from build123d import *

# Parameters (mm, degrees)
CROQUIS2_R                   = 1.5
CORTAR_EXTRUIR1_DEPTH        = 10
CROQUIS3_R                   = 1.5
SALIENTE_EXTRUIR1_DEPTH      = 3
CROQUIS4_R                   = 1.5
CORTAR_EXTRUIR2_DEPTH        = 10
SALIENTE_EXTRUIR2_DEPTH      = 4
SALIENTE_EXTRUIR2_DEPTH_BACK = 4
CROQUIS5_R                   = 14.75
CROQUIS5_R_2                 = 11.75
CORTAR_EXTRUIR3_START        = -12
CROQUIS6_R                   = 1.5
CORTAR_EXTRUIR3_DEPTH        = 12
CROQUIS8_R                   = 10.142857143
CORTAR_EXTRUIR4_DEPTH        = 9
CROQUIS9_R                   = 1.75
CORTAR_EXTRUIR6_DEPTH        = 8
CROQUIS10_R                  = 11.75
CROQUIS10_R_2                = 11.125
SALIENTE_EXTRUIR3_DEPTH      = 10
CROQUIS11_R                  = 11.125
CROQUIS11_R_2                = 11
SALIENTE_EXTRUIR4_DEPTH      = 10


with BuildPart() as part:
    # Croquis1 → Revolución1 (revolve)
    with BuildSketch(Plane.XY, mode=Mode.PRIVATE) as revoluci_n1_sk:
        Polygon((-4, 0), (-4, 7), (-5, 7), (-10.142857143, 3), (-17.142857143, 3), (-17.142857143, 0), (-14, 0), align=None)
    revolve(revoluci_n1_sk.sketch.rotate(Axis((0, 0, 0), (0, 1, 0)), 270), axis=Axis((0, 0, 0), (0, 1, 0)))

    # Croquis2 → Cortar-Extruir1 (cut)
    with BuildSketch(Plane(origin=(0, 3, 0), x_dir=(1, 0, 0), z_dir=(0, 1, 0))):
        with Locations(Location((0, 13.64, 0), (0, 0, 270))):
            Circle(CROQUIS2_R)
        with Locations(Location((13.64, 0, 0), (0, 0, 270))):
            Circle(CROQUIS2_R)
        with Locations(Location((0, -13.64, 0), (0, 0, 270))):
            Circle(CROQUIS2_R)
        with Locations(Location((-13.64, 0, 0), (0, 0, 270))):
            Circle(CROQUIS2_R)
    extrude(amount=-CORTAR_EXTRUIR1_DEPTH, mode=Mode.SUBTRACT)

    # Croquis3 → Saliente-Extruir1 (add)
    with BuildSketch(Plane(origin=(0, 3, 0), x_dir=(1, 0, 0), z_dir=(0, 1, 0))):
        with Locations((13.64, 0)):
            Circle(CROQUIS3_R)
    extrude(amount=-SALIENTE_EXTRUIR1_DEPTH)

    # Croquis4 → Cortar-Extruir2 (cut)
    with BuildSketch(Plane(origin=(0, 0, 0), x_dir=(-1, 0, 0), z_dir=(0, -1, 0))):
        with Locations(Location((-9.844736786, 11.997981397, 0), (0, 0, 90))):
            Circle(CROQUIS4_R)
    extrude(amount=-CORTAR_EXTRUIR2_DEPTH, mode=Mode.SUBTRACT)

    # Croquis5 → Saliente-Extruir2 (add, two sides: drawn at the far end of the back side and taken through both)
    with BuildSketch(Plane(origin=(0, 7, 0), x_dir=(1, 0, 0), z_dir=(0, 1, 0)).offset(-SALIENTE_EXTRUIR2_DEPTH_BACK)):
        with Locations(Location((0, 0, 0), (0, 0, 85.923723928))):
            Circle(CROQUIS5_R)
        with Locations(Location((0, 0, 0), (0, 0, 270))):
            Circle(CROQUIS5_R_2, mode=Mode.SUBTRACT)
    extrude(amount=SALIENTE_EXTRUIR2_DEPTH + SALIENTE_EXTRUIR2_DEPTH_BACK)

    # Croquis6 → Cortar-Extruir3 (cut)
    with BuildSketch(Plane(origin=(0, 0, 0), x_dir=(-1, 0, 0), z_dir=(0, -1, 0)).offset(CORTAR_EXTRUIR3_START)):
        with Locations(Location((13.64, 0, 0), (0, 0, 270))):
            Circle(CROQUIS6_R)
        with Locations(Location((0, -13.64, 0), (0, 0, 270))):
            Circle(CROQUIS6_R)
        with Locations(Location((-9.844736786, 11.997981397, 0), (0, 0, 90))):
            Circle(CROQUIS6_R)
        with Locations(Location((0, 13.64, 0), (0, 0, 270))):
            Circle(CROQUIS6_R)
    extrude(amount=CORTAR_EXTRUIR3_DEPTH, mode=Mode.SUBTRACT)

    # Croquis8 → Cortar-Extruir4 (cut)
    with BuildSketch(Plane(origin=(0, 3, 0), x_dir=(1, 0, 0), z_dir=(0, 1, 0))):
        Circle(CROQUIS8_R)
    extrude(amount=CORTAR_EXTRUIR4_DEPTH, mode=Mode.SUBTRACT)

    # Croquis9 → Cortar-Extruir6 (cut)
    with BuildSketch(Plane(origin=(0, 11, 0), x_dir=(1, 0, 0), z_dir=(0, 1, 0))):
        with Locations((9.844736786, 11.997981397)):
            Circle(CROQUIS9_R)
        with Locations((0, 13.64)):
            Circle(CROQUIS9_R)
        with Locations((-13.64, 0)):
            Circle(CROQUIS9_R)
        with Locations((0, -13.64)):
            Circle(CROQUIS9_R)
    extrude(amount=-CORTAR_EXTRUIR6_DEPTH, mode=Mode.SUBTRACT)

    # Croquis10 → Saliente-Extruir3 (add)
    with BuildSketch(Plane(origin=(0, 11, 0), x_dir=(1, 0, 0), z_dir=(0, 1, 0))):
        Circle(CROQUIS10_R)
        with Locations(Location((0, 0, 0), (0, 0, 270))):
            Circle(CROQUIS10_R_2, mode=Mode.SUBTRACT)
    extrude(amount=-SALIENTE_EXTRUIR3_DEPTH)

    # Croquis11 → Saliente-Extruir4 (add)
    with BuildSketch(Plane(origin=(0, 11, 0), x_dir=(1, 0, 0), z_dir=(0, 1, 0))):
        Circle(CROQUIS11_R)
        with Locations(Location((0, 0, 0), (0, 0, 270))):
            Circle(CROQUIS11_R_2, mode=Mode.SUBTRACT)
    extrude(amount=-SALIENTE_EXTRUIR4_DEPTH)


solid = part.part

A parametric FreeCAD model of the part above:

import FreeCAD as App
import Part
import Sketcher
from FreeCAD import Vector
Q = App.Units.Quantity

doc = App.newDocument("Part")
body = doc.addObject("PartDesign::Body", "Body")

# Sketch on XY plane
sketch1 = doc.addObject("Sketcher::SketchObject", "Sketch")
body.addObject(sketch1)
sketch1.AttachmentSupport = (doc.XY_Plane, [""])
sketch1.MapMode = "FlatFace"
sketch1.addGeometry([
    Part.LineSegment(Vector(-4, 0, 0), Vector(-4, 7, 0)),  # 0
    Part.LineSegment(Vector(-4, 7, 0), Vector(-5, 7, 0)),  # 1
    Part.LineSegment(Vector(-5, 7, 0), Vector(-10.1, 3, 0)),  # 2
    Part.LineSegment(Vector(-10.1, 3, 0), Vector(-17.1, 3, 0)),  # 3
    Part.LineSegment(Vector(-17.1, 3, 0), Vector(-17.1, 0, 0)),  # 4
    Part.LineSegment(Vector(-17.1, 0, 0), Vector(-4, 0, 0)),  # 5
], False)
sketch1.addConstraint([
    Sketcher.Constraint("Coincident", 0, 2, 1, 1),
    Sketcher.Constraint("Coincident", 1, 2, 2, 1),
    Sketcher.Constraint("Coincident", 2, 2, 3, 1),
    Sketcher.Constraint("Coincident", 3, 2, 4, 1),
    Sketcher.Constraint("Coincident", 4, 2, 5, 1),
    Sketcher.Constraint("Coincident", 5, 2, 0, 1),
    Sketcher.Constraint("Vertical", 0),
    Sketcher.Constraint("Horizontal", 1),
    Sketcher.Constraint("Horizontal", 3),
    Sketcher.Constraint("Vertical", 4),
    Sketcher.Constraint("Horizontal", 5),
    Sketcher.Constraint("PointOnObject", 4, 2, -1),
    Sketcher.Constraint("Equal", 3, 0),
    Sketcher.Constraint("DistanceX", 1, 2, 1, 1, Q("1 mm")),
    Sketcher.Constraint("DistanceX", 3, 2, 3, 1, Q("7 mm")),
    Sketcher.Constraint("DistanceY", 4, 2, 4, 1, Q("3 mm")),
    Sketcher.Constraint("DistanceX", 0, 2, -1, 1, Q("4 mm")),
    Sketcher.Constraint("Distance", 2, Q("6.515288 mm")),
])
revolution = doc.addObject("PartDesign::Revolution", "Revolution")
body.addObject(revolution)
revolution.Profile = sketch1
revolution.ReferenceAxis = (sketch1, ["V_Axis"])
revolution.Angle = 360

# Sketch on XZ plane
sketch2 = doc.addObject("Sketcher::SketchObject", "Sketch001")
body.addObject(sketch2)
sketch2.AttachmentSupport = (doc.XZ_Plane, [""])
sketch2.MapMode = "FlatFace"
sketch2.AttachmentOffset = App.Placement(Vector(0, 0, -3), App.Rotation())
sketch2.addGeometry([
    Part.Circle(Vector(0, -13.6, 0), Vector(0, 0, 1), 1.5),
    Part.Circle(Vector(13.6, 0, 0), Vector(0, 0, 1), 1.5),
    Part.Circle(Vector(0, 13.6, 0), Vector(0, 0, 1), 1.5),
    Part.Circle(Vector(-13.6, 0, 0), Vector(0, 0, 1), 1.5),
], False)
sketch2.addConstraint([
    Sketcher.Constraint("Equal", 0, 1),
    Sketcher.Constraint("Equal", 1, 2),
    Sketcher.Constraint("Equal", 2, 3),
    Sketcher.Constraint("Symmetric", 0, 3, 2, 3, -1, 1),
    Sketcher.Constraint("Symmetric", 1, 3, 3, 3, -1, 1),
    Sketcher.Constraint("PointOnObject", 0, 3, -2),
    Sketcher.Constraint("PointOnObject", 1, 3, -1),
    Sketcher.Constraint("Diameter", 0, Q("3 mm")),
    Sketcher.Constraint("DistanceY", 0, 3, -1, 1, Q("13.64 mm")),
    Sketcher.Constraint("DistanceX", -1, 1, 1, 3, Q("13.64 mm")),
])
pocket1 = doc.addObject("PartDesign::Pocket", "Pocket")
body.addObject(pocket1)
pocket1.Profile = sketch2
pocket1.Length = 10
pocket1.Reversed = True

# Sketch on XZ plane
sketch3 = doc.addObject("Sketcher::SketchObject", "Sketch002")
body.addObject(sketch3)
sketch3.AttachmentSupport = (doc.XZ_Plane, [""])
sketch3.MapMode = "FlatFace"
sketch3.AttachmentOffset = App.Placement(Vector(0, 0, -3), App.Rotation())
sketch3.addGeometry(Part.Circle(Vector(13.6, 0, 0), Vector(0, 0, 1), 1.5), False)
sketch3.addConstraint([
    Sketcher.Constraint("PointOnObject", 0, 3, -1),
    Sketcher.Constraint("Diameter", 0, Q("3 mm")),
    Sketcher.Constraint("DistanceX", -1, 1, 0, 3, Q("13.64 mm")),
])
pad1 = doc.addObject("PartDesign::Pad", "Pad")
body.addObject(pad1)
pad1.Profile = sketch3
pad1.Length = 3

# Sketch on XZ plane
sketch4 = doc.addObject("Sketcher::SketchObject", "Sketch003")
body.addObject(sketch4)
sketch4.AttachmentSupport = (doc.XZ_Plane, [""])
sketch4.MapMode = "FlatFace"
sketch4.addGeometry(Part.Circle(Vector(9.8, -12, 0), Vector(0, 0, 1), 1.5), False)
sketch4.addConstraint([
    Sketcher.Constraint("Diameter", 0, Q("3 mm")),
    Sketcher.Constraint("DistanceY", 0, 3, -1, 1, Q("11.997981 mm")),
    Sketcher.Constraint("DistanceX", -1, 1, 0, 3, Q("9.844737 mm")),
])
pocket2 = doc.addObject("PartDesign::Pocket", "Pocket001")
body.addObject(pocket2)
pocket2.Profile = sketch4
pocket2.Length = 10

# Sketch on XZ plane
sketch5 = doc.addObject("Sketcher::SketchObject", "Sketch004")
body.addObject(sketch5)
sketch5.AttachmentSupport = (doc.XZ_Plane, [""])
sketch5.MapMode = "FlatFace"
sketch5.AttachmentOffset = App.Placement(Vector(0, 0, -7), App.Rotation())
sketch5.addGeometry([
    Part.Circle(Vector(0, 0, 0), Vector(0, 0, 1), 15),
    Part.Circle(Vector(0, 0, 0), Vector(0, 0, 1), 12),
], False)
sketch5.addConstraint([
    Sketcher.Constraint("Coincident", 0, 3, -1, 1),
    Sketcher.Constraint("Coincident", 1, 3, -1, 1),
    Sketcher.Constraint("Diameter", 0, Q("29.5 mm")),
    Sketcher.Constraint("Diameter", 1, Q("23.5 mm")),
])
pad2 = doc.addObject("PartDesign::Pad", "Pad001")
body.addObject(pad2)
pad2.Profile = sketch5
pad2.Type = "TwoLengths"
pad2.Length = 4
pad2.Length2 = 4
pad2.Reversed = True

# Sketch on XZ plane
sketch6 = doc.addObject("Sketcher::SketchObject", "Sketch005")
body.addObject(sketch6)
sketch6.AttachmentSupport = (doc.XZ_Plane, [""])
sketch6.MapMode = "FlatFace"
sketch6.AttachmentOffset = App.Placement(Vector(0, 0, -12), App.Rotation())
sketch6.addGeometry([
    Part.Circle(Vector(-13.6, 0, 0), Vector(0, 0, 1), 1.5),
    Part.Circle(Vector(0, 13.6, 0), Vector(0, 0, 1), 1.5),
    Part.Circle(Vector(9.8, -12, 0), Vector(0, 0, 1), 1.5),
    Part.Circle(Vector(0, -13.6, 0), Vector(0, 0, 1), 1.5),
], False)
sketch6.addConstraint([
    Sketcher.Constraint("Equal", 0, 1),
    Sketcher.Constraint("Equal", 1, 2),
    Sketcher.Constraint("Equal", 2, 3),
    Sketcher.Constraint("Symmetric", 1, 3, 3, 3, -1, 1),
    Sketcher.Constraint("PointOnObject", 0, 3, -1),
    Sketcher.Constraint("PointOnObject", 1, 3, -2),
    Sketcher.Constraint("Diameter", 0, Q("3 mm")),
    Sketcher.Constraint("DistanceX", 0, 3, -1, 1, Q("13.64 mm")),
    Sketcher.Constraint("DistanceY", -1, 1, 1, 3, Q("13.64 mm")),
    Sketcher.Constraint("DistanceY", 2, 3, -1, 1, Q("11.997981 mm")),
    Sketcher.Constraint("DistanceX", -1, 1, 2, 3, Q("9.844737 mm")),
])
pocket3 = doc.addObject("PartDesign::Pocket", "Pocket002")
body.addObject(pocket3)
pocket3.Profile = sketch6
pocket3.Length = 12
pocket3.Reversed = True

# Sketch on XZ plane
sketch7 = doc.addObject("Sketcher::SketchObject", "Sketch006")
body.addObject(sketch7)
sketch7.AttachmentSupport = (doc.XZ_Plane, [""])
sketch7.MapMode = "FlatFace"
sketch7.AttachmentOffset = App.Placement(Vector(0, 0, -3), App.Rotation())
sketch7.addGeometry(Part.Circle(Vector(0, 0, 0), Vector(0, 0, 1), 10), False)
sketch7.addConstraint([
    Sketcher.Constraint("Coincident", 0, 3, -1, 1),
    Sketcher.Constraint("Diameter", 0, Q("20.285714 mm")),
])
pocket4 = doc.addObject("PartDesign::Pocket", "Pocket003")
body.addObject(pocket4)
pocket4.Profile = sketch7
pocket4.Length = 9

# Sketch on XZ plane
sketch8 = doc.addObject("Sketcher::SketchObject", "Sketch007")
body.addObject(sketch8)
sketch8.AttachmentSupport = (doc.XZ_Plane, [""])
sketch8.MapMode = "FlatFace"
sketch8.AttachmentOffset = App.Placement(Vector(0, 0, -11), App.Rotation())
sketch8.addGeometry([
    Part.Circle(Vector(9.8, -12, 0), Vector(0, 0, 1), 1.8),
    Part.Circle(Vector(0, -13.6, 0), Vector(0, 0, 1), 1.8),
    Part.Circle(Vector(-13.6, 0, 0), Vector(0, 0, 1), 1.8),
    Part.Circle(Vector(0, 13.6, 0), Vector(0, 0, 1), 1.8),
], False)
sketch8.addConstraint([
    Sketcher.Constraint("Equal", 0, 1),
    Sketcher.Constraint("Equal", 1, 2),
    Sketcher.Constraint("Equal", 2, 3),
    Sketcher.Constraint("Symmetric", 1, 3, 3, 3, -1, 1),
    Sketcher.Constraint("PointOnObject", 1, 3, -2),
    Sketcher.Constraint("PointOnObject", 2, 3, -1),
    Sketcher.Constraint("Diameter", 0, Q("3.5 mm")),
    Sketcher.Constraint("DistanceY", 1, 3, -1, 1, Q("13.64 mm")),
    Sketcher.Constraint("DistanceX", 2, 3, -1, 1, Q("13.64 mm")),
    Sketcher.Constraint("DistanceY", 0, 3, -1, 1, Q("11.997981 mm")),
    Sketcher.Constraint("DistanceX", -1, 1, 0, 3, Q("9.844737 mm")),
])
pocket5 = doc.addObject("PartDesign::Pocket", "Pocket004")
body.addObject(pocket5)
pocket5.Profile = sketch8
pocket5.Length = 8
pocket5.Reversed = True

# Sketch on XZ plane
sketch9 = doc.addObject("Sketcher::SketchObject", "Sketch008")
body.addObject(sketch9)
sketch9.AttachmentSupport = (doc.XZ_Plane, [""])
sketch9.MapMode = "FlatFace"
sketch9.AttachmentOffset = App.Placement(Vector(0, 0, -11), App.Rotation())
sketch9.addGeometry([
    Part.Circle(Vector(0, 0, 0), Vector(0, 0, 1), 12),
    Part.Circle(Vector(0, 0, 0), Vector(0, 0, 1), 11),
], False)
sketch9.addConstraint([
    Sketcher.Constraint("Coincident", 0, 3, -1, 1),
    Sketcher.Constraint("Coincident", 1, 3, -1, 1),
    Sketcher.Constraint("Diameter", 0, Q("23.5 mm")),
    Sketcher.Constraint("Diameter", 1, Q("22.25 mm")),
])
pad3 = doc.addObject("PartDesign::Pad", "Pad002")
body.addObject(pad3)
pad3.Profile = sketch9
pad3.Length = 10

# Sketch on XZ plane
sketch10 = doc.addObject("Sketcher::SketchObject", "Sketch009")
body.addObject(sketch10)
sketch10.AttachmentSupport = (doc.XZ_Plane, [""])
sketch10.MapMode = "FlatFace"
sketch10.AttachmentOffset = App.Placement(Vector(0, 0, -11), App.Rotation())
sketch10.addGeometry([
    Part.Circle(Vector(0, 0, 0), Vector(0, 0, 1), 11),
    Part.Circle(Vector(0, 0, 0), Vector(0, 0, 1), 11),
], False)
sketch10.addConstraint([
    Sketcher.Constraint("Coincident", 0, 3, -1, 1),
    Sketcher.Constraint("Coincident", 1, 3, -1, 1),
    Sketcher.Constraint("Diameter", 1, Q("22 mm")),
    Sketcher.Constraint("Diameter", 0, Q("22.25 mm")),
])
pad4 = doc.addObject("PartDesign::Pad", "Pad003")
body.addObject(pad4)
pad4.Profile = sketch10
pad4.Length = 10

doc.recompute()
